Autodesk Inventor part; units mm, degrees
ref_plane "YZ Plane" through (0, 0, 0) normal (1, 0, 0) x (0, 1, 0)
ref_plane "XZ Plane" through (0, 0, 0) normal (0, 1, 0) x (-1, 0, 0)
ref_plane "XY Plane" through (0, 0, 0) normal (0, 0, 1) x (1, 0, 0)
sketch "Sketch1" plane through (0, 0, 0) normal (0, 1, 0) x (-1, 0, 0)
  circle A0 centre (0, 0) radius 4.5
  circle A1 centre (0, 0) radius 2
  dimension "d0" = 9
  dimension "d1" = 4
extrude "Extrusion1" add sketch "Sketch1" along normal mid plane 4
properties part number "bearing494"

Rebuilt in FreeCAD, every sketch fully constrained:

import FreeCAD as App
import Part
import Sketcher
from FreeCAD import Vector

doc = App.newDocument("Part")
params = doc.addObject("Spreadsheet::Sheet", "Params")
for row, (alias, value) in enumerate([
    ("sketch1_diameter", "9 mm"),
    ("sketch1_diameter2", "4 mm"),
    ("pad1_length", "4 mm"),
], start=1):
    params.set(f"A{row}", alias)
    params.set(f"B{row}", "=" + value)
    params.setAlias(f"B{row}", alias)

body = doc.addObject("PartDesign::Body", "Body")

# Sketch on XZ plane
sketch1 = body.newObject("Sketcher::SketchObject", "Sketch")
sketch1.AttachmentSupport = (doc.getObject("XZ_Plane"), [""])
sketch1.MapMode = "FlatFace"
sketch1.addGeometry(Part.Circle(Vector(0, 0, 0), Vector(0, 0, 1), 4.5), False)
sketch1.addGeometry(Part.Circle(Vector(0, 0, 0), Vector(0, 0, 1), 2), False)
sketch1.addConstraint(Sketcher.Constraint("Coincident", 0, 3, -1, 1))
sketch1.addConstraint(Sketcher.Constraint("Coincident", 1, 3, -1, 1))
sketch1.addConstraint(Sketcher.Constraint("Diameter", 0, 9.0))
sketch1.addConstraint(Sketcher.Constraint("Diameter", 1, 4.0))
sketch1.setExpression("Constraints[2]", "Params.sketch1_diameter")
sketch1.setExpression("Constraints[3]", "Params.sketch1_diameter2")
pad1 = body.newObject("PartDesign::Pad", "Pad")
pad1.Profile = sketch1
pad1.setExpression("Length", "Params.pad1_length")
pad1.Midplane = True

doc.recompute()
